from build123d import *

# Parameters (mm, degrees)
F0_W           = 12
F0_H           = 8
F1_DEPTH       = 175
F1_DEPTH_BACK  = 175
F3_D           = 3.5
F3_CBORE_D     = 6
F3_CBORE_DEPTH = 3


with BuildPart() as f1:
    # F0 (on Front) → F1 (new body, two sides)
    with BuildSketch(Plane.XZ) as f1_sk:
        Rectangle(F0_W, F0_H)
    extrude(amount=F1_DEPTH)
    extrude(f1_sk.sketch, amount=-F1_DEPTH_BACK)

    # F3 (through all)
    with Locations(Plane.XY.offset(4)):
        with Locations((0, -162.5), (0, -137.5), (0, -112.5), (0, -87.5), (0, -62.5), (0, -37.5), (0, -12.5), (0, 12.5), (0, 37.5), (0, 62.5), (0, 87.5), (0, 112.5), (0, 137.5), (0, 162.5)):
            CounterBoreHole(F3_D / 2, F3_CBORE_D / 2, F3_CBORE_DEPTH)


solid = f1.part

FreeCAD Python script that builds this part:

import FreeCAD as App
import Part
import Sketcher

doc = App.newDocument("Part")
body = doc.addObject("PartDesign::Body", "Body")

# Sketch on XZ plane
sketch1 = body.newObject("Sketcher::SketchObject", "Sketch")
sketch1.AttachmentSupport = (doc.getObject("XZ_Plane"), [""])
sketch1.MapMode = "FlatFace"
sketch1.addGeometry([
    Part.LineSegment(App.Vector(-6, 4, 0), App.Vector(-6, -4, 0)),
    Part.LineSegment(App.Vector(-6, -4, 0), App.Vector(6, -4, 0)),
    Part.LineSegment(App.Vector(6, -4, 0), App.Vector(6, 4, 0)),
    Part.LineSegment(App.Vector(6, 4, 0), App.Vector(-6, 4, 0)),
], False)
sketch1.addConstraint([
    Sketcher.Constraint("Coincident", 0, 2, 1, 1),
    Sketcher.Constraint("Coincident", 1, 2, 2, 1),
    Sketcher.Constraint("Coincident", 2, 2, 3, 1),
    Sketcher.Constraint("Coincident", 3, 2, 0, 1),
    Sketcher.Constraint("Vertical", 0),
    Sketcher.Constraint("Horizontal", 1),
    Sketcher.Constraint("Vertical", 2),
    Sketcher.Constraint("Horizontal", 3),
    Sketcher.Constraint("Symmetric", 0, 2, 2, 2, -1, 1),
    Sketcher.Constraint("DistanceX", 1, 1, 1, 2, 12.0),
    Sketcher.Constraint("DistanceY", 0, 2, 0, 1, 8.0),
])
pad1 = body.newObject("PartDesign::Pad", "Pad")
pad1.Profile = sketch1
pad1.Type = "TwoLengths"
pad1.Length = 175
pad1.Length2 = 175

# Sketch on XY plane
sketch2 = body.newObject("Sketcher::SketchObject", "Sketch001")
sketch2.AttachmentSupport = (doc.getObject("XY_Plane"), [""])
sketch2.MapMode = "FlatFace"
sketch2.AttachmentOffset = App.Placement(App.Vector(0, 0, 4), App.Rotation())
sketch2.addGeometry([
    Part.Circle(App.Vector(0, -162.5, 0), App.Vector(0, 0, 1), 1.8),  # 0
    Part.Circle(App.Vector(0, -137.5, 0), App.Vector(0, 0, 1), 1.8),  # 1
    Part.Circle(App.Vector(0, -112.5, 0), App.Vector(0, 0, 1), 1.8),  # 2
    Part.Circle(App.Vector(0, -87.5, 0), App.Vector(0, 0, 1), 1.8),  # 3
    Part.Circle(App.Vector(0, -62.5, 0), App.Vector(0, 0, 1), 1.8),  # 4
    Part.Circle(App.Vector(0, -37.5, 0), App.Vector(0, 0, 1), 1.8),  # 5
    Part.Circle(App.Vector(0, -12.5, 0), App.Vector(0, 0, 1), 1.8),  # 6
    Part.Circle(App.Vector(0, 12.5, 0), App.Vector(0, 0, 1), 1.8),  # 7
    Part.Circle(App.Vector(0, 37.5, 0), App.Vector(0, 0, 1), 1.8),  # 8
    Part.Circle(App.Vector(0, 62.5, 0), App.Vector(0, 0, 1), 1.8),  # 9
    Part.Circle(App.Vector(0, 87.5, 0), App.Vector(0, 0, 1), 1.8),  # 10
    Part.Circle(App.Vector(0, 112.5, 0), App.Vector(0, 0, 1), 1.8),  # 11
    Part.Circle(App.Vector(0, 137.5, 0), App.Vector(0, 0, 1), 1.8),  # 12
    Part.Circle(App.Vector(0, 162.5, 0), App.Vector(0, 0, 1), 1.8),  # 13
], False)
sketch2.addConstraint([
    Sketcher.Constraint("Equal", 0, 1),
    Sketcher.Constraint("Equal", 1, 2),
    Sketcher.Constraint("Equal", 2, 3),
    Sketcher.Constraint("Equal", 3, 4),
    Sketcher.Constraint("Equal", 4, 5),
    Sketcher.Constraint("Equal", 5, 6),
    Sketcher.Constraint("Equal", 6, 7),
    Sketcher.Constraint("Equal", 7, 8),
    Sketcher.Constraint("Equal", 8, 9),
    Sketcher.Constraint("Equal", 9, 10),
    Sketcher.Constraint("Equal", 10, 11),
    Sketcher.Constraint("Equal", 11, 12),
    Sketcher.Constraint("Equal", 12, 13),
    Sketcher.Constraint("Symmetric", 6, 3, 7, 3, -1, 1),
    Sketcher.Constraint("Symmetric", 5, 3, 8, 3, -1, 1),
    Sketcher.Constraint("Symmetric", 4, 3, 9, 3, -1, 1),
    Sketcher.Constraint("Symmetric", 3, 3, 10, 3, -1, 1),
    Sketcher.Constraint("Symmetric", 2, 3, 11, 3, -1, 1),
    Sketcher.Constraint("Symmetric", 1, 3, 12, 3, -1, 1),
    Sketcher.Constraint("Symmetric", 0, 3, 13, 3, -1, 1),
    Sketcher.Constraint("PointOnObject", 0, 3, -2),
    Sketcher.Constraint("PointOnObject", 1, 3, -2),
    Sketcher.Constraint("PointOnObject", 2, 3, -2),
    Sketcher.Constraint("PointOnObject", 3, 3, -2),
    Sketcher.Constraint("PointOnObject", 4, 3, -2),
    Sketcher.Constraint("PointOnObject", 5, 3, -2),
    Sketcher.Constraint("PointOnObject", 6, 3, -2),
    Sketcher.Constraint("Diameter", 0, 3.5),
    Sketcher.Constraint("DistanceY", 0, 3, 1, 3, 25.0),
    Sketcher.Constraint("DistanceY", 1, 3, 2, 3, 25.0),
    Sketcher.Constraint("DistanceY", 2, 3, 3, 3, 25.0),
    Sketcher.Constraint("DistanceY", 3, 3, 4, 3, 25.0),
    Sketcher.Constraint("DistanceY", 4, 3, 5, 3, 25.0),
    Sketcher.Constraint("DistanceY", 5, 3, 6, 3, 25.0),
    Sketcher.Constraint("DistanceY", 6, 3, 7, 3, 25.0),
])
doc.recompute()
hole = body.newObject("PartDesign::Hole", "Hole")
hole.Profile = sketch2
hole.ThreadType = "None"
hole.Diameter = 3.5
hole.DepthType = "ThroughAll"
hole.HoleCutType = "Counterbore"
hole.HoleCutDiameter = 6
hole.HoleCutDepth = 3

doc.recompute()
